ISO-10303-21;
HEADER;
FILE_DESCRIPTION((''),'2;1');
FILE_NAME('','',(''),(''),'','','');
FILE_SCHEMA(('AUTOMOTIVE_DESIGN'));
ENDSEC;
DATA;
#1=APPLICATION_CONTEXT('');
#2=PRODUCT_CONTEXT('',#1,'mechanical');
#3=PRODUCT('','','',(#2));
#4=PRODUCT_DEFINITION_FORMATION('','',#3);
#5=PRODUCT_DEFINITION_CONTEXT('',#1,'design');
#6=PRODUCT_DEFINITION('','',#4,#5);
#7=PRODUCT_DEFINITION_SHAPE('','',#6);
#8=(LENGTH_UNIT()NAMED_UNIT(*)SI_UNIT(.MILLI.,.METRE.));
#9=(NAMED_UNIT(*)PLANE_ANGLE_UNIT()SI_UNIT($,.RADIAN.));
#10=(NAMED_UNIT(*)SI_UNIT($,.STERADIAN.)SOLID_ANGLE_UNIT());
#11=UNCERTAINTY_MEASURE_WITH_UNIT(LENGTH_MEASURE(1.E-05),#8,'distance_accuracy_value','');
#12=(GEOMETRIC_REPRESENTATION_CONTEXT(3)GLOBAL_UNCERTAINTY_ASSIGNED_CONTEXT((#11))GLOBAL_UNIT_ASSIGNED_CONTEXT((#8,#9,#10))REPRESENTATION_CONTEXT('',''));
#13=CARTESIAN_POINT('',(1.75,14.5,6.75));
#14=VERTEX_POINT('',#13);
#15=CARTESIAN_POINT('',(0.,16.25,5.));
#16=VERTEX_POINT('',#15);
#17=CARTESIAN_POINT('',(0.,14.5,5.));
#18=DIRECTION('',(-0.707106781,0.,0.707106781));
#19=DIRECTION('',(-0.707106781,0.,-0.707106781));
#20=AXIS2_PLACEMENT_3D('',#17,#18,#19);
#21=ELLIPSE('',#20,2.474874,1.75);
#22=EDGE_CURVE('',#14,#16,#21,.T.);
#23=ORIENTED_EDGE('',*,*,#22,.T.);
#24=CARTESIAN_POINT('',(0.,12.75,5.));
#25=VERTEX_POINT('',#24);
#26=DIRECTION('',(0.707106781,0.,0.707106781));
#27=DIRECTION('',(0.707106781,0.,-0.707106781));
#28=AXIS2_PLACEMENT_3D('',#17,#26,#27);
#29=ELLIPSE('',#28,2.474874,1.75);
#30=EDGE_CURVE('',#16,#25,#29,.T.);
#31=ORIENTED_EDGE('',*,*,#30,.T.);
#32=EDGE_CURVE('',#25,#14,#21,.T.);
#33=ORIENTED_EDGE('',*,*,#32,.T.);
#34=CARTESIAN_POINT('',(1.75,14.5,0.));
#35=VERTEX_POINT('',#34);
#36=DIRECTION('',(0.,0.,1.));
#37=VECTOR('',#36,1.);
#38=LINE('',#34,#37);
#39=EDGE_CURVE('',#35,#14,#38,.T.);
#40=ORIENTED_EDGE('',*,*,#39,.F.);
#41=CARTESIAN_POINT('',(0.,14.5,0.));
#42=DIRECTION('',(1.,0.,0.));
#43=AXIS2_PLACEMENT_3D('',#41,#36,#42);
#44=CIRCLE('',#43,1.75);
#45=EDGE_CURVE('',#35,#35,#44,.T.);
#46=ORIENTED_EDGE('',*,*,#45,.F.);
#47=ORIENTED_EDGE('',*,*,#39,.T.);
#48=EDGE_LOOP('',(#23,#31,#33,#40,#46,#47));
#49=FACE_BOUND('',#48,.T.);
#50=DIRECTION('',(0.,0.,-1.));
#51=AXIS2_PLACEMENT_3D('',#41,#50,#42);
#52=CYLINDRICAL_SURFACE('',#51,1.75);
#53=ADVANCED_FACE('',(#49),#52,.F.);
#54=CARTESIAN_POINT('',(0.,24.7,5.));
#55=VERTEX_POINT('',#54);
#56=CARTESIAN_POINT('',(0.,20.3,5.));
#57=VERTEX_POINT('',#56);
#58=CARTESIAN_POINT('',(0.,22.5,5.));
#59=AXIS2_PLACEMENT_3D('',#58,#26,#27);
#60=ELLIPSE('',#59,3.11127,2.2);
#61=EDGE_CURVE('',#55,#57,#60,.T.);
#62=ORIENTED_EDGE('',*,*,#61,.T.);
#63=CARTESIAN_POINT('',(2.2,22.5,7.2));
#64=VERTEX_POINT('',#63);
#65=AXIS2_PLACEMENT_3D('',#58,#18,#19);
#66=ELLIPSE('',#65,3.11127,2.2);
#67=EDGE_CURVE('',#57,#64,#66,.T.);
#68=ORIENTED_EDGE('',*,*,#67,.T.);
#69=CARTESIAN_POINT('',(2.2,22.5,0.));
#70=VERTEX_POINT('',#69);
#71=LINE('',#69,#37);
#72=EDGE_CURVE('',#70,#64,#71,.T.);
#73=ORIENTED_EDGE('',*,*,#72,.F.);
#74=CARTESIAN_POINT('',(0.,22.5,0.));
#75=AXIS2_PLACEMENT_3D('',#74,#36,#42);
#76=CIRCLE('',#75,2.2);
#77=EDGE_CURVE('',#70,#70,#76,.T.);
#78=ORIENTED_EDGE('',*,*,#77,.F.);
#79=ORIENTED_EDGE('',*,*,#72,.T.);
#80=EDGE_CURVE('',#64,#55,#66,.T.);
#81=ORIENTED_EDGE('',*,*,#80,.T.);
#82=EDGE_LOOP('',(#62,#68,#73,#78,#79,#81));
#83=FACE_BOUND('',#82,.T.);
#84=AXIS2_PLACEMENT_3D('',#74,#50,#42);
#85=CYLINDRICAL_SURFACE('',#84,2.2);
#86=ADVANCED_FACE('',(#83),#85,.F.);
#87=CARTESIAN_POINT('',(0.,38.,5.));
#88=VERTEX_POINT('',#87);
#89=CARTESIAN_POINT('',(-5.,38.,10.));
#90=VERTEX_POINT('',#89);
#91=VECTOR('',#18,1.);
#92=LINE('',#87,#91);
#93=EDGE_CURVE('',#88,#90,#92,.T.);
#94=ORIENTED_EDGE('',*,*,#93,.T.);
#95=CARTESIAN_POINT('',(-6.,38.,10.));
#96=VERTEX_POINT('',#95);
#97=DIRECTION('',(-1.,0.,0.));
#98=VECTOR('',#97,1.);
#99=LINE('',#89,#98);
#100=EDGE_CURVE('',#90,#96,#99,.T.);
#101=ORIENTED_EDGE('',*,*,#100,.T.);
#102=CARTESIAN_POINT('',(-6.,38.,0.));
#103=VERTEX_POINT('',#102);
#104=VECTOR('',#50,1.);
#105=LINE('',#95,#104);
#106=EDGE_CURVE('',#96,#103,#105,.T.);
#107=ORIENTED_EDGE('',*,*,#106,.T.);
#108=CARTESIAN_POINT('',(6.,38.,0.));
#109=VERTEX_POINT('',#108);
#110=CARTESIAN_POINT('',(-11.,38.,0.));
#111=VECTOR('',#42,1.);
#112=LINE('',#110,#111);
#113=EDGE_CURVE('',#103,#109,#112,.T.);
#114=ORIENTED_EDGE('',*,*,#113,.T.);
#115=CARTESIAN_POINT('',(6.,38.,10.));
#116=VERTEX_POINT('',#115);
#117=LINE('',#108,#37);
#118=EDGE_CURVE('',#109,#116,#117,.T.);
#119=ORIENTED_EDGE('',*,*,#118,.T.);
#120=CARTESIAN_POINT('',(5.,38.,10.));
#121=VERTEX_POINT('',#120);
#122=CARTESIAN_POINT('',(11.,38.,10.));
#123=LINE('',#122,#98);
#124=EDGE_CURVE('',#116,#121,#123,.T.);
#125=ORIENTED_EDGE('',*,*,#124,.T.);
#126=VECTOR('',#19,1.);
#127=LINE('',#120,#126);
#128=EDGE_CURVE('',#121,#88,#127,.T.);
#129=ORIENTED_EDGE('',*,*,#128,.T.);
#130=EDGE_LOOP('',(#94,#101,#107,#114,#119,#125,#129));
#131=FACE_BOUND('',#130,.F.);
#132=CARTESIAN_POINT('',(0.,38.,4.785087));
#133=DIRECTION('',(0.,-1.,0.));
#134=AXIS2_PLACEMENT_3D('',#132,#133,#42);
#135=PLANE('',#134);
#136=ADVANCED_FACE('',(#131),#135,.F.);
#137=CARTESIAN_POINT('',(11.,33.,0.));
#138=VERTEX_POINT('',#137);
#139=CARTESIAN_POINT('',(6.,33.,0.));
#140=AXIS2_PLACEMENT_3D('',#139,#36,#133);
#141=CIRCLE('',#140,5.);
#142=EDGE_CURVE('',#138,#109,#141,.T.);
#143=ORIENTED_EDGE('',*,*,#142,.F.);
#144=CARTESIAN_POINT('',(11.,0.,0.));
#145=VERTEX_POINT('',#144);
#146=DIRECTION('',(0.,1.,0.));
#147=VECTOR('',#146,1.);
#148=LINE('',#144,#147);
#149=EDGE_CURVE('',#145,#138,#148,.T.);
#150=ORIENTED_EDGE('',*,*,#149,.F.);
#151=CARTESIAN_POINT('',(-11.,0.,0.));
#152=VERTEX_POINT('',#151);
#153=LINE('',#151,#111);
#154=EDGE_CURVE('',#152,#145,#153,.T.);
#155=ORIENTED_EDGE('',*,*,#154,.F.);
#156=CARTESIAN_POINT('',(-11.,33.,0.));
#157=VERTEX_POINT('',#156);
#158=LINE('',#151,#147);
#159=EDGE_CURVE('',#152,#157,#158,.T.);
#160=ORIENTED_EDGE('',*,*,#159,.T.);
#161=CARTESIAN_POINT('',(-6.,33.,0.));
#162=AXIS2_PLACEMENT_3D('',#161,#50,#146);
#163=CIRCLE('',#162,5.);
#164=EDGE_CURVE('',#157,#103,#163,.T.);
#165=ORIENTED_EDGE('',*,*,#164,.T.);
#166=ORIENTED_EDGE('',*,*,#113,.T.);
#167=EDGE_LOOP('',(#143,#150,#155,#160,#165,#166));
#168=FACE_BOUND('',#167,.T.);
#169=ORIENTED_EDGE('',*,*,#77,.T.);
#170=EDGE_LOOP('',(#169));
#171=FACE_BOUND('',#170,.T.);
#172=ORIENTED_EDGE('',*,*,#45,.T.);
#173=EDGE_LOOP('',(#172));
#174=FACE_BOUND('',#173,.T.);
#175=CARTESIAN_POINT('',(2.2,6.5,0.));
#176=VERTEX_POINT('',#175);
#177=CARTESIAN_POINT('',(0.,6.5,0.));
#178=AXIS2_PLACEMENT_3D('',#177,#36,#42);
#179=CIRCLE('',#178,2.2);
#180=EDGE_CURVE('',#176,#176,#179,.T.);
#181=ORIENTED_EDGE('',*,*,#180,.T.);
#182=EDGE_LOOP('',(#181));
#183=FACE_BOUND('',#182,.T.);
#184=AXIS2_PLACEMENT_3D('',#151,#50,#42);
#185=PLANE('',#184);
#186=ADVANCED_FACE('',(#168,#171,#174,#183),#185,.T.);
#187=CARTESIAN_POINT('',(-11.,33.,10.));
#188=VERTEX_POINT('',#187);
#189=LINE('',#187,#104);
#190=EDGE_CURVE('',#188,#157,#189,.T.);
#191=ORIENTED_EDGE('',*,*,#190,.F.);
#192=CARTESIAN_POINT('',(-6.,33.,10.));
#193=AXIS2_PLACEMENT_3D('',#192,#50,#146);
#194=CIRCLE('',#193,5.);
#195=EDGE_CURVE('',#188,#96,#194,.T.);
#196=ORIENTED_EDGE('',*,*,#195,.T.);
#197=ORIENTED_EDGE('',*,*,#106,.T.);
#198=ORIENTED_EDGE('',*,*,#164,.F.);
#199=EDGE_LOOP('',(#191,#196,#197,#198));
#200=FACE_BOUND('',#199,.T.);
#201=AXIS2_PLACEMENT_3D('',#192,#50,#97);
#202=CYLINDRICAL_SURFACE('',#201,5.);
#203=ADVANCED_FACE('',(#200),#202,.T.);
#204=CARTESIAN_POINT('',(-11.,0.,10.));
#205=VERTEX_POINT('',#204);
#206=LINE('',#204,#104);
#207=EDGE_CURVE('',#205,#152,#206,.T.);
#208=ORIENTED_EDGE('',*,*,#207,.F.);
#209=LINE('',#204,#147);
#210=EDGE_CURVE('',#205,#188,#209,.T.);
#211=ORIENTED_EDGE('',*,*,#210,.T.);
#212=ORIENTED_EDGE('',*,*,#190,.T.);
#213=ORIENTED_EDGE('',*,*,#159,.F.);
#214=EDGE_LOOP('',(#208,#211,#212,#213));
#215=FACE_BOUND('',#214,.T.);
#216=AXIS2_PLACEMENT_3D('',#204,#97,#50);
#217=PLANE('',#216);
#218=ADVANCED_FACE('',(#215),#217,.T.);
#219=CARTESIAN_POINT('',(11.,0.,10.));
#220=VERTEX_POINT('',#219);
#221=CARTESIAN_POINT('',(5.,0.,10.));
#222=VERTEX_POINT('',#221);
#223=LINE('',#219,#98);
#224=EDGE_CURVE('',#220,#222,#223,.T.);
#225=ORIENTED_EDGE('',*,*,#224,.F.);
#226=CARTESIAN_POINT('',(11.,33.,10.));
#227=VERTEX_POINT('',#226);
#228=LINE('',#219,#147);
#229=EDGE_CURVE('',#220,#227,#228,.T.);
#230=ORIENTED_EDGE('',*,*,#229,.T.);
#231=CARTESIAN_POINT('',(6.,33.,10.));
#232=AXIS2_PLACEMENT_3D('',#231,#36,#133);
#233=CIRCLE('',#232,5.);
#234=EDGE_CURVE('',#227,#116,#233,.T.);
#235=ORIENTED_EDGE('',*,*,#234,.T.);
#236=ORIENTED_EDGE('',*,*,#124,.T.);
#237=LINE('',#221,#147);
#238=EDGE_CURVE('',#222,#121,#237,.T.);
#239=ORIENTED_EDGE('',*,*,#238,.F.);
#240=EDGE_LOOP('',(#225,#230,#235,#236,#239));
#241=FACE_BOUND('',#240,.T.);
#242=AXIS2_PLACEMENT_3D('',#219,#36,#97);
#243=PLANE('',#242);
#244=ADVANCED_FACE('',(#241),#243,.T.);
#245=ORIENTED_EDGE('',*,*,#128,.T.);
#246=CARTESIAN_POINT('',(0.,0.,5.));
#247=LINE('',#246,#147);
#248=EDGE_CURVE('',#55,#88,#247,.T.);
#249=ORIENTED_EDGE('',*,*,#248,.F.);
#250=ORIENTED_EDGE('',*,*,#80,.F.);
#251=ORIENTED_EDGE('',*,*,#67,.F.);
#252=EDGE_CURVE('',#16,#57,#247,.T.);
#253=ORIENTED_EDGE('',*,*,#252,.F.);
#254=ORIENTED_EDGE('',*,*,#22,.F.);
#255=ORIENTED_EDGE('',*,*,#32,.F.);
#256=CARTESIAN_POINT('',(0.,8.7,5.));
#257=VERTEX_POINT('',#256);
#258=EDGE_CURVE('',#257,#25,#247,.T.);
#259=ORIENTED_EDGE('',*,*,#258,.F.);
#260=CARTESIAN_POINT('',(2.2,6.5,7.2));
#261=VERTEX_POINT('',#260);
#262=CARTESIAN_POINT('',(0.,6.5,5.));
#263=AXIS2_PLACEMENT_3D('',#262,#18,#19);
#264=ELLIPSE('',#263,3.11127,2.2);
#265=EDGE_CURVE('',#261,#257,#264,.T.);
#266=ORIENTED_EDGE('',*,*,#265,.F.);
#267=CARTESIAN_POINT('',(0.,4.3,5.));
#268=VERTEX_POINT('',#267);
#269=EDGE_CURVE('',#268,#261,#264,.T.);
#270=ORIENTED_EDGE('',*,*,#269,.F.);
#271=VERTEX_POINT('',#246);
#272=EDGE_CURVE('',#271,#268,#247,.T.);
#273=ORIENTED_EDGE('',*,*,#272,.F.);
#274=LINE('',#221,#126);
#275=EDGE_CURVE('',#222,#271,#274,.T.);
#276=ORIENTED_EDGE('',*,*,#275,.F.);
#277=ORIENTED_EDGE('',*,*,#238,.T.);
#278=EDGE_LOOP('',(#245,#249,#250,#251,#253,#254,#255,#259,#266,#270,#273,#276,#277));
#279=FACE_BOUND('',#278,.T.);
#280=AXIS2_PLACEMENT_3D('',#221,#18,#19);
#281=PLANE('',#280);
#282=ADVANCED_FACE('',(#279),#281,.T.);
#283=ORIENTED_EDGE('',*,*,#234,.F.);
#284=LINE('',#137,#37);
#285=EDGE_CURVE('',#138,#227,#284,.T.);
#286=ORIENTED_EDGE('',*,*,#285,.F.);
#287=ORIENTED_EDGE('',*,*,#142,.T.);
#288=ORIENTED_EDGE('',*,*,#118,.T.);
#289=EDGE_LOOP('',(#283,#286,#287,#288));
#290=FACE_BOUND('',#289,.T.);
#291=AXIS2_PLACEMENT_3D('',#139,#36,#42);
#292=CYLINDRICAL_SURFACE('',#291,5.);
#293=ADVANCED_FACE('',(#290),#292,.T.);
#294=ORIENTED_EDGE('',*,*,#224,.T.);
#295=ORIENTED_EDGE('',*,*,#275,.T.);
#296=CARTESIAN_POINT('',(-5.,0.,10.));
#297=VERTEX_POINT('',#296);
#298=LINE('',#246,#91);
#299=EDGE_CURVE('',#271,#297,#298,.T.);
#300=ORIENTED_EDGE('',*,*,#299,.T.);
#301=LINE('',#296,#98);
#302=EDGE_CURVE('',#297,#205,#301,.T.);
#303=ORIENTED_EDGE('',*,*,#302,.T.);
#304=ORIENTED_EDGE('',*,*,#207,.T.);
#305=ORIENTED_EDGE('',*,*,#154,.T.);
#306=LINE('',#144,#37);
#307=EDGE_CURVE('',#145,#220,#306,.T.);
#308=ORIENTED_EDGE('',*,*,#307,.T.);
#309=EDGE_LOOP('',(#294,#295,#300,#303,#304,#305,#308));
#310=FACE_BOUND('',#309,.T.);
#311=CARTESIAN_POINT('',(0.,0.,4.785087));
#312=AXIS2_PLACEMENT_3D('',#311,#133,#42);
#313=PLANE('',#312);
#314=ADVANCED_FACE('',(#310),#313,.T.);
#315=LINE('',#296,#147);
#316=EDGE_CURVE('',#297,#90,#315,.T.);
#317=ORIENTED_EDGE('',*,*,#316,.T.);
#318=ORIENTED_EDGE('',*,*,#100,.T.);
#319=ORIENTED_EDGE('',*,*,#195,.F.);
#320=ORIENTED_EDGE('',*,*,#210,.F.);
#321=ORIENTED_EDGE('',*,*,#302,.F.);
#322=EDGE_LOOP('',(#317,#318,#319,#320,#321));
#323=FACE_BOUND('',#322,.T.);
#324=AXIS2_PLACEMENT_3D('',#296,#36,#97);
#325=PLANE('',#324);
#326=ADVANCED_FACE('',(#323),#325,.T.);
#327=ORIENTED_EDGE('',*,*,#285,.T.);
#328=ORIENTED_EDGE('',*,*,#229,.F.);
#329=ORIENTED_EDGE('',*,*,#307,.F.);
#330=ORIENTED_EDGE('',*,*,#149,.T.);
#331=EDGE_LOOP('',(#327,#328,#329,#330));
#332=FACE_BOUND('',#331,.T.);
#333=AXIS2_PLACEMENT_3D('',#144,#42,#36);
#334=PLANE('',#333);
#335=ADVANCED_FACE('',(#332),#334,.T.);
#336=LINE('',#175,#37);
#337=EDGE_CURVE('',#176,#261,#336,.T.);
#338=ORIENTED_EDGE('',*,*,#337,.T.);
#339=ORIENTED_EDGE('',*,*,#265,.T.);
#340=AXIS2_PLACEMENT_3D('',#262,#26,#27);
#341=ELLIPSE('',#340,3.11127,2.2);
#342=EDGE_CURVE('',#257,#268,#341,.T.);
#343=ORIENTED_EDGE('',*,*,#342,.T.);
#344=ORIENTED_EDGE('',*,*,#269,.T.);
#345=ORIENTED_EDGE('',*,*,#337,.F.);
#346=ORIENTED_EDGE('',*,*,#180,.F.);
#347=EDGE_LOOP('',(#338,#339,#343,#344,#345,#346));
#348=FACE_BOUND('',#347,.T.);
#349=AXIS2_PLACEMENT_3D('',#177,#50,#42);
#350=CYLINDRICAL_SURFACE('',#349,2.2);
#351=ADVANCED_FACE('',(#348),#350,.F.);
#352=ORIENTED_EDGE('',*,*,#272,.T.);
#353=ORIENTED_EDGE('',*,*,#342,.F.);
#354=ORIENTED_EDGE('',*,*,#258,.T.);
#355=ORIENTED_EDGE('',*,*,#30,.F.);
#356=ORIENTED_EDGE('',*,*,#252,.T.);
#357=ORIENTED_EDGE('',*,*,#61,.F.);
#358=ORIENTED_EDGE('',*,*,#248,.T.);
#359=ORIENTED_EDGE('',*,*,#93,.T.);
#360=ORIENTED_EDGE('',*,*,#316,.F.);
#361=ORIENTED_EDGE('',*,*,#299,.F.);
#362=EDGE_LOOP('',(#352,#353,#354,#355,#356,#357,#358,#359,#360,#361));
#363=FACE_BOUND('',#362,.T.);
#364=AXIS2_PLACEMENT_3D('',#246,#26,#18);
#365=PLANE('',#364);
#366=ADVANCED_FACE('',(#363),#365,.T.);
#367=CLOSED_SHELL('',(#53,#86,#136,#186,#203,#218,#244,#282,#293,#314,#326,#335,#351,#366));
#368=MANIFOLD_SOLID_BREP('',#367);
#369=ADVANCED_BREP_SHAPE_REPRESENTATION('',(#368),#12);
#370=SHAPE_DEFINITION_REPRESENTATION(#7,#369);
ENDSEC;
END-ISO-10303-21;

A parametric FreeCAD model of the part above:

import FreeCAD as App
import Part
import Sketcher
from FreeCAD import Vector
Q = App.Units.Quantity


def edges_at(feature, points):
    """Names of the edges that pass closest to the given points."""
    edges = feature.Shape.Edges
    near = lambda p: min(range(len(edges)), key=lambda i: edges[i].distToShape(Part.Vertex(*p))[0])
    return sorted({f"Edge{near(p) + 1}" for p in points})

doc = App.newDocument("Part")
body = doc.addObject("PartDesign::Body", "Body")

# Sketch on XZ plane
sketch1 = doc.addObject("Sketcher::SketchObject", "Sketch")
body.addObject(sketch1)
sketch1.AttachmentSupport = (doc.XZ_Plane, [""])
sketch1.MapMode = "FlatFace"
sketch1.addGeometry(Part.LineSegment(Vector(-11, 10, 0), Vector(-11, 0, 0)), False)
sketch1.addGeometry(Part.LineSegment(Vector(-11, 0, 0), Vector(11, 0, 0)), False)
sketch1.addGeometry(Part.LineSegment(Vector(11, 0, 0), Vector(11, 10, 0)), False)
sketch1.addGeometry(Part.LineSegment(Vector(11, 10, 0), Vector(5, 10, 0)), False)
sketch1.addGeometry(Part.LineSegment(Vector(5, 10, 0), Vector(0, 5, 0)), False)
sketch1.addGeometry(Part.LineSegment(Vector(0, 5, 0), Vector(-5, 10, 0)), False)
sketch1.addGeometry(Part.LineSegment(Vector(-5, 10, 0), Vector(-11, 10, 0)), False)
sketch1.addConstraint(Sketcher.Constraint("Coincident", 0, 2, 1, 1))
sketch1.addConstraint(Sketcher.Constraint("Coincident", 1, 2, 2, 1))
sketch1.addConstraint(Sketcher.Constraint("Coincident", 2, 2, 3, 1))
sketch1.addConstraint(Sketcher.Constraint("Coincident", 3, 2, 4, 1))
sketch1.addConstraint(Sketcher.Constraint("Coincident", 4, 2, 5, 1))
sketch1.addConstraint(Sketcher.Constraint("Coincident", 5, 2, 6, 1))
sketch1.addConstraint(Sketcher.Constraint("Coincident", 6, 2, 0, 1))
sketch1.addConstraint(Sketcher.Constraint("Vertical", 0))
sketch1.addConstraint(Sketcher.Constraint("Horizontal", 1))
sketch1.addConstraint(Sketcher.Constraint("Vertical", 2))
sketch1.addConstraint(Sketcher.Constraint("Horizontal", 3))
sketch1.addConstraint(Sketcher.Constraint("Horizontal", 6))
sketch1.addConstraint(Sketcher.Constraint("Symmetric", 0, 2, 1, 2, -1, 1))
sketch1.addConstraint(Sketcher.Constraint("Symmetric", 3, 2, 5, 2, -2))
sketch1.addConstraint(Sketcher.Constraint("PointOnObject", 4, 2, -2))
sketch1.addConstraint(Sketcher.Constraint("Perpendicular", 4, 5))
sketch1.addConstraint(Sketcher.Constraint("DistanceX", 1, 1, 1, 2, Q("22 mm")))
sketch1.addConstraint(Sketcher.Constraint("DistanceX", 3, 2, 3, 1, Q("6 mm")))
sketch1.addConstraint(Sketcher.Constraint("DistanceY", 0, 2, 0, 1, Q("10 mm")))
pad1 = doc.addObject("PartDesign::Pad", "Pad")
body.addObject(pad1)
pad1.Profile = sketch1
pad1.Length = 38
pad1.Reversed = True
doc.recompute()

fillet = doc.addObject("PartDesign::Fillet", "Fillet")
body.addObject(fillet)
fillet.Base = (pad1, edges_at(pad1, [(11, 38, 5), (-11, 38, 5)]))
fillet.Radius = 5

# Sketch on XY plane
sketch2 = doc.addObject("Sketcher::SketchObject", "Sketch001")
body.addObject(sketch2)
sketch2.AttachmentSupport = (doc.XY_Plane, [""])
sketch2.MapMode = "FlatFace"
sketch2.addGeometry(Part.Circle(Vector(0, 6.5, 0), Vector(0, 0, 1), 2.2), False)
sketch2.addGeometry(Part.Circle(Vector(0, 22.5, 0), Vector(0, 0, 1), 2.2), False)
sketch2.addGeometry(Part.Circle(Vector(0, 14.5, 0), Vector(0, 0, 1), 1.75), False)
sketch2.addConstraint(Sketcher.Constraint("Equal", 0, 1))
sketch2.addConstraint(Sketcher.Constraint("PointOnObject", 0, 3, -2))
sketch2.addConstraint(Sketcher.Constraint("PointOnObject", 1, 3, -2))
sketch2.addConstraint(Sketcher.Constraint("PointOnObject", 2, 3, -2))
sketch2.addConstraint(Sketcher.Constraint("Diameter", 0, Q("4.4 mm")))
sketch2.addConstraint(Sketcher.Constraint("Diameter", 2, Q("3.5 mm")))
sketch2.addConstraint(Sketcher.Constraint("DistanceY", 0, 3, 1, 3, Q("16 mm")))
sketch2.addConstraint(Sketcher.Constraint("DistanceY", 0, 3, 2, 3, Q("8 mm")))
sketch2.addConstraint(Sketcher.Constraint("DistanceY", -1, 1, 0, 3, Q("6.5 mm")))
pocket1 = doc.addObject("PartDesign::Pocket", "Pocket")
body.addObject(pocket1)
pocket1.Profile = sketch2
pocket1.Type = "ThroughAll"
pocket1.Reversed = True

doc.recompute()
